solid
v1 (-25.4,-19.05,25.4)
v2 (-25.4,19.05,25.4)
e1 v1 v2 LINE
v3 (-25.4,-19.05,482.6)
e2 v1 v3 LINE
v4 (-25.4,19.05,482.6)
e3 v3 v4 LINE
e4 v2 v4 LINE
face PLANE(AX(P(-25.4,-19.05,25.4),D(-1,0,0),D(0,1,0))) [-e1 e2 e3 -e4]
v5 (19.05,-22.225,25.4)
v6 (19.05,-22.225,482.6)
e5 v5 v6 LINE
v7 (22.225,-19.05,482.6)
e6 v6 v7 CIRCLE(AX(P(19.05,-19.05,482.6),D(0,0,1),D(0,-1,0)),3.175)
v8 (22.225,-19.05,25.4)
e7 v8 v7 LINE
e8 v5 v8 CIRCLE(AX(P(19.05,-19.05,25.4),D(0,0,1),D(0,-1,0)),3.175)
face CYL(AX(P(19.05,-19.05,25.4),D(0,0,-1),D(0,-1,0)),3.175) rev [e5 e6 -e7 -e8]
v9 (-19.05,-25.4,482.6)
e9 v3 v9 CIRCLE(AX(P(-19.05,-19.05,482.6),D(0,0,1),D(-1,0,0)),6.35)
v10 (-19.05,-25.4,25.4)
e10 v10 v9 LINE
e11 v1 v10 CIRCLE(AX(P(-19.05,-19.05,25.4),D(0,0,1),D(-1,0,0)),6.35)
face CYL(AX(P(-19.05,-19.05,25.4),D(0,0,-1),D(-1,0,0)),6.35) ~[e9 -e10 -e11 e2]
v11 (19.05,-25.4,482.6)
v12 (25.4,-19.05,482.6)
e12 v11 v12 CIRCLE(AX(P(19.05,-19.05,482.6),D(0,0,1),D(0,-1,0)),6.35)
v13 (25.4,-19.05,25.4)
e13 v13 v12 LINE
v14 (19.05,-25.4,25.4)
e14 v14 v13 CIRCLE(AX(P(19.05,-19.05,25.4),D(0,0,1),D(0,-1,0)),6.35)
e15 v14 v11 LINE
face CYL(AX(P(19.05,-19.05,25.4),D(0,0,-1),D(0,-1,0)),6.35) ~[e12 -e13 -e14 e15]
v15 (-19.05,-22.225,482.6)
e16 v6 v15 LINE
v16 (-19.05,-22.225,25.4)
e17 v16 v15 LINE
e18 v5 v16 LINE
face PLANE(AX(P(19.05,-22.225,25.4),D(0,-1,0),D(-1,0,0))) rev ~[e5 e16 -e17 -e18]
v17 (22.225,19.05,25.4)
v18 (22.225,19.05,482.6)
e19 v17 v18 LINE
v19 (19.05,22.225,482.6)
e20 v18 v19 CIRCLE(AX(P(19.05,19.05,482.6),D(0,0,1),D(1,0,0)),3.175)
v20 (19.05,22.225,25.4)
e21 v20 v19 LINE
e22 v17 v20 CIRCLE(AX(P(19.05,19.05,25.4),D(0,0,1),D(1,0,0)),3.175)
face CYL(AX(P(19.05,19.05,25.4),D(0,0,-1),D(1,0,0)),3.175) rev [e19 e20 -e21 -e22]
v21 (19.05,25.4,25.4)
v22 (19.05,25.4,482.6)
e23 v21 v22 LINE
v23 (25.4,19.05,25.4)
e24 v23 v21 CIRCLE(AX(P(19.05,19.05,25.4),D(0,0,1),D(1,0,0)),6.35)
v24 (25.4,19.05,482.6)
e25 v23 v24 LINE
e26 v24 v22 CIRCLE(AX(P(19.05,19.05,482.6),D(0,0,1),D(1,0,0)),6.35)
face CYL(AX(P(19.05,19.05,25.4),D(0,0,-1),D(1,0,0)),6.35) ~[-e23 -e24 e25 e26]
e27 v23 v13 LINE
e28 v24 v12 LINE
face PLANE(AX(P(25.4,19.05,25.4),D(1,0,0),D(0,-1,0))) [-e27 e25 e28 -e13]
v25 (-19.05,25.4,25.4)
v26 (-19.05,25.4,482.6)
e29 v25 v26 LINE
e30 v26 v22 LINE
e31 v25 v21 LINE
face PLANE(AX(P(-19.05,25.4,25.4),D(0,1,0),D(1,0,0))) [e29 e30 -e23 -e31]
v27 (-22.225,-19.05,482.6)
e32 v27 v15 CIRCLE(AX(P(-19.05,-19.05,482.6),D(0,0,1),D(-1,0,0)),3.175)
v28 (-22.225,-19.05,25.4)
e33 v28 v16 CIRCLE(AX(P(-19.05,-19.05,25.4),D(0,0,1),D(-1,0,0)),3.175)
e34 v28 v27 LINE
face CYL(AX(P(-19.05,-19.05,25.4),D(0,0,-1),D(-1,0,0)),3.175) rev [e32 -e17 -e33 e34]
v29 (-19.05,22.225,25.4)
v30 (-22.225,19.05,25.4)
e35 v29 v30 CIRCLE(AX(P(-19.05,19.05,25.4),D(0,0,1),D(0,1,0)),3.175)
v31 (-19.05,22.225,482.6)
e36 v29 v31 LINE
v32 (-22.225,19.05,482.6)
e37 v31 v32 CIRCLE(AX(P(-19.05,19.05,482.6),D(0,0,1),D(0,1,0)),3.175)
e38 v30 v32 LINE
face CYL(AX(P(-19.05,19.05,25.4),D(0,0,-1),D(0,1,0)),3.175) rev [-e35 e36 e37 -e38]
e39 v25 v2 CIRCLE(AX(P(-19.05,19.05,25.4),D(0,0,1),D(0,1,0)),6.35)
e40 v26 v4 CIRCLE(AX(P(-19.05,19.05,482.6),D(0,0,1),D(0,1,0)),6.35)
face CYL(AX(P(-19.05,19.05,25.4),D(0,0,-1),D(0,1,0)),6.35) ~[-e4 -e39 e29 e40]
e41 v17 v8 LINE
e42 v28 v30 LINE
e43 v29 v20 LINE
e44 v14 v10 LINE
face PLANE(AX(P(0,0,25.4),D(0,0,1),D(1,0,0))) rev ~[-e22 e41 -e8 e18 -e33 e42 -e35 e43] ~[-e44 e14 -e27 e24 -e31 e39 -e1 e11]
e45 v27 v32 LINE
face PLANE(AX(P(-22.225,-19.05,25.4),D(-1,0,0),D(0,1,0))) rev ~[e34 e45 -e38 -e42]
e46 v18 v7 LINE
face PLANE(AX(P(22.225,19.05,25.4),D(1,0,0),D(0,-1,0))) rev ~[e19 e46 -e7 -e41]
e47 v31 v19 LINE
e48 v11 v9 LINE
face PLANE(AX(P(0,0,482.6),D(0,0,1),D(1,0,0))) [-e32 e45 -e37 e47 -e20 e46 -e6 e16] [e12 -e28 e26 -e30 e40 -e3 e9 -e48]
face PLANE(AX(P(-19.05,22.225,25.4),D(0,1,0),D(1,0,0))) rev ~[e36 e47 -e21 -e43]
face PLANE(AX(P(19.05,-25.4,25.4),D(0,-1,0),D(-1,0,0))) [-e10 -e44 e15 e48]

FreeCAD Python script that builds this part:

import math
import FreeCAD as App
import Part
import Sketcher

V = App.Vector
Q = App.Units.Quantity

doc = App.newDocument("Part")
body = doc.addObject("PartDesign::Body", "Body")

sketch1 = body.newObject("Sketcher::SketchObject", "Sketch")
sketch1.AttachmentSupport = (doc.getObject("XY_Plane"), [""])
sketch1.MapMode = "FlatFace"
sketch1.AttachmentOffset = App.Placement(V(0, 0, 1 * 25.4), App.Rotation())
sketch1.addGeometry([
    Part.LineSegment(V(-25.4, 19.1, 0), V(-25.4, -19.1, 0)),
    Part.ArcOfCircle(Part.Circle(V(-19.1, -19.1, 0), V(0, 0, 1), 6.3), math.radians(180), math.radians(270)),
    Part.LineSegment(V(-19.1, -25.4, 0), V(19.1, -25.4, 0)),
    Part.ArcOfCircle(Part.Circle(V(19.1, -19.1, 0), V(0, 0, 1), 6.3), math.radians(-90), math.radians(0)),
    Part.LineSegment(V(25.4, -19.1, 0), V(25.4, 19.1, 0)),
    Part.ArcOfCircle(Part.Circle(V(19.1, 19.1, 0), V(0, 0, 1), 6.3), math.radians(0), math.radians(90)),
    Part.LineSegment(V(19.1, 25.4, 0), V(-19.1, 25.4, 0)),
    Part.ArcOfCircle(Part.Circle(V(-19.1, 19.1, 0), V(0, 0, 1), 6.3), math.radians(90), math.radians(180)),
    Part.ArcOfCircle(Part.Circle(V(-19.1, 19.1, 0), V(0, 0, 1), 3.2), math.radians(90), math.radians(180)),
    Part.LineSegment(V(-19.1, 22.2, 0), V(19.1, 22.2, 0)),
    Part.ArcOfCircle(Part.Circle(V(19.1, 19.1, 0), V(0, 0, 1), 3.2), math.radians(0), math.radians(90)),
    Part.LineSegment(V(22.2, 19.1, 0), V(22.2, -19.1, 0)),
    Part.ArcOfCircle(Part.Circle(V(19.1, -19.1, 0), V(0, 0, 1), 3.2), math.radians(-90), math.radians(0)),
    Part.LineSegment(V(19.1, -22.2, 0), V(-19.1, -22.2, 0)),
    Part.ArcOfCircle(Part.Circle(V(-19.1, -19.1, 0), V(0, 0, 1), 3.2), math.radians(180), math.radians(270)),
    Part.LineSegment(V(-22.2, -19.1, 0), V(-22.2, 19.1, 0)),
], False)
sketch1.addConstraint([
    Sketcher.Constraint("Tangent", 0, 2, 1, 1),
    Sketcher.Constraint("Tangent", 1, 2, 2, 1),
    Sketcher.Constraint("Tangent", 2, 2, 3, 1),
    Sketcher.Constraint("Tangent", 3, 2, 4, 1),
    Sketcher.Constraint("Tangent", 4, 2, 5, 1),
    Sketcher.Constraint("Tangent", 5, 2, 6, 1),
    Sketcher.Constraint("Tangent", 6, 2, 7, 1),
    Sketcher.Constraint("Tangent", 7, 2, 0, 1),
    Sketcher.Constraint("Tangent", 8, 1, 9, 1),
    Sketcher.Constraint("Tangent", 9, 2, 10, 2),
    Sketcher.Constraint("Tangent", 10, 1, 11, 1),
    Sketcher.Constraint("Tangent", 11, 2, 12, 2),
    Sketcher.Constraint("Tangent", 12, 1, 13, 1),
    Sketcher.Constraint("Tangent", 13, 2, 14, 2),
    Sketcher.Constraint("Tangent", 14, 1, 15, 1),
    Sketcher.Constraint("Tangent", 15, 2, 8, 2),
    Sketcher.Constraint("Vertical", 0),
    Sketcher.Constraint("Horizontal", 2),
    Sketcher.Constraint("Vertical", 4),
    Sketcher.Constraint("Horizontal", 6),
    Sketcher.Constraint("Horizontal", 9),
    Sketcher.Constraint("Vertical", 11),
    Sketcher.Constraint("Horizontal", 13),
    Sketcher.Constraint("Vertical", 15),
    Sketcher.Constraint("Coincident", 8, 3, 7, 3),
    Sketcher.Constraint("Coincident", 10, 3, 5, 3),
    Sketcher.Constraint("Coincident", 12, 3, 3, 3),
    Sketcher.Constraint("Equal", 1, 3),
    Sketcher.Constraint("Equal", 3, 5),
    Sketcher.Constraint("Equal", 5, 7),
    Sketcher.Constraint("Equal", 12, 14),
    Sketcher.Constraint("Symmetric", 1, 3, 5, 3, -1, 1),
    Sketcher.Constraint("Equal", 13, 0),
    Sketcher.Constraint("Radius", 1, Q("0.25 in")),
    Sketcher.Constraint("DistanceX", 0, 2, -1, 1, Q("1 in")),
    Sketcher.Constraint("Radius", 8, Q("0.125 in")),
])
pad1 = body.newObject("PartDesign::Pad", "Pad")
pad1.Profile = sketch1
pad1.Length = Q("18 in")

doc.recompute()
